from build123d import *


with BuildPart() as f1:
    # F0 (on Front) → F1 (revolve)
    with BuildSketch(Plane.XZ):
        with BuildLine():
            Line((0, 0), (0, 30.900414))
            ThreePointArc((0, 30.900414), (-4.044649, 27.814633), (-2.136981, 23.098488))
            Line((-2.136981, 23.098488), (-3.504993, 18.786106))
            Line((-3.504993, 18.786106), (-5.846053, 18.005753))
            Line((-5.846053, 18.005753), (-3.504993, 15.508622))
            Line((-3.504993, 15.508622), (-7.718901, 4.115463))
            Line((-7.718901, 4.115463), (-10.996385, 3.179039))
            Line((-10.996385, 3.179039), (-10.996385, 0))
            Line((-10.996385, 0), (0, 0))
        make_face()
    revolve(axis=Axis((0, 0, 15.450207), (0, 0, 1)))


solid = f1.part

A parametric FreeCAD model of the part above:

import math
import FreeCAD as App
import Part
import Sketcher
Q = App.Units.Quantity

doc = App.newDocument("Part")
body = doc.addObject("PartDesign::Body", "Body")

# Sketch on XZ plane
sketch1 = doc.addObject("Sketcher::SketchObject", "Sketch")
body.addObject(sketch1)
sketch1.AttachmentSupport = (doc.XZ_Plane, [""])
sketch1.MapMode = "FlatFace"
sketch1.addGeometry(Part.LineSegment(App.Vector(0, 0, 0), App.Vector(0, 30.9, 0)), False)
sketch1.addGeometry(Part.ArcOfCircle(Part.Circle(App.Vector(0, 26.7, 0), App.Vector(0, 0, 1), 4.2), math.radians(90), math.radians(239)), False)
sketch1.addGeometry(Part.LineSegment(App.Vector(-2.1, 23.1, 0), App.Vector(-3.5, 18.8, 0)), False)
sketch1.addGeometry(Part.LineSegment(App.Vector(-3.5, 18.8, 0), App.Vector(-5.8, 18, 0)), False)
sketch1.addGeometry(Part.LineSegment(App.Vector(-5.8, 18, 0), App.Vector(-3.5, 15.5, 0)), False)
sketch1.addGeometry(Part.LineSegment(App.Vector(-3.5, 15.5, 0), App.Vector(-7.7, 4.1, 0)), False)
sketch1.addGeometry(Part.LineSegment(App.Vector(-7.7, 4.1, 0), App.Vector(-11, 3.2, 0)), False)
sketch1.addGeometry(Part.LineSegment(App.Vector(-11, 3.2, 0), App.Vector(-11, 0, 0)), False)
sketch1.addGeometry(Part.LineSegment(App.Vector(-11, 0, 0), App.Vector(0, 0, 0)), False)
sketch1.addConstraint(Sketcher.Constraint("Coincident", 0, 2, 1, 1))
sketch1.addConstraint(Sketcher.Constraint("Coincident", 1, 2, 2, 1))
sketch1.addConstraint(Sketcher.Constraint("Coincident", 2, 2, 3, 1))
sketch1.addConstraint(Sketcher.Constraint("Coincident", 3, 2, 4, 1))
sketch1.addConstraint(Sketcher.Constraint("Coincident", 4, 2, 5, 1))
sketch1.addConstraint(Sketcher.Constraint("Coincident", 5, 2, 6, 1))
sketch1.addConstraint(Sketcher.Constraint("Coincident", 6, 2, 7, 1))
sketch1.addConstraint(Sketcher.Constraint("Coincident", 7, 2, 8, 1))
sketch1.addConstraint(Sketcher.Constraint("Coincident", 8, 2, 0, 1))
sketch1.addConstraint(Sketcher.Constraint("Vertical", 0))
sketch1.addConstraint(Sketcher.Constraint("Vertical", 7))
sketch1.addConstraint(Sketcher.Constraint("Horizontal", 8))
sketch1.addConstraint(Sketcher.Constraint("Coincident", 8, 2, -1, 1))
sketch1.addConstraint(Sketcher.Constraint("PointOnObject", 1, 3, -2))
sketch1.addConstraint(Sketcher.Constraint("Vertical", 2, 2, 4, 2))
sketch1.addConstraint(Sketcher.Constraint("Radius", 1, Q("4.193627 mm")))
sketch1.addConstraint(Sketcher.Constraint("DistanceY", 7, 2, 7, 1, Q("3.179039 mm")))
sketch1.addConstraint(Sketcher.Constraint("DistanceX", 5, 2, -1, 1, Q("7.718901 mm")))
sketch1.addConstraint(Sketcher.Constraint("DistanceY", 1, 2, 1, 3, Q("3.608299 mm")))
sketch1.addConstraint(Sketcher.Constraint("DistanceX", 8, 1, 8, 2, Q("10.996385 mm")))
sketch1.addConstraint(Sketcher.Constraint("DistanceY", 0, 1, 0, 2, Q("30.900414 mm")))
sketch1.addConstraint(Sketcher.Constraint("DistanceX", 2, 2, 1, 2, Q("1.368012 mm")))
sketch1.addConstraint(Sketcher.Constraint("DistanceY", 2, 2, 1, 2, Q("4.312382 mm")))
sketch1.addConstraint(Sketcher.Constraint("DistanceX", 3, 2, 2, 2, Q("2.34106 mm")))
sketch1.addConstraint(Sketcher.Constraint("DistanceY", 3, 2, 0, 2, Q("12.894661 mm")))
sketch1.addConstraint(Sketcher.Constraint("DistanceY", 4, 2, 3, 2, Q("2.497131 mm")))
sketch1.addConstraint(Sketcher.Constraint("DistanceY", 5, 2, 4, 2, Q("11.393159 mm")))
revolution = doc.addObject("PartDesign::Revolution", "Revolution")
body.addObject(revolution)
revolution.Profile = sketch1
revolution.ReferenceAxis = (sketch1, ["V_Axis"])
revolution.Angle = 360

doc.recompute()
